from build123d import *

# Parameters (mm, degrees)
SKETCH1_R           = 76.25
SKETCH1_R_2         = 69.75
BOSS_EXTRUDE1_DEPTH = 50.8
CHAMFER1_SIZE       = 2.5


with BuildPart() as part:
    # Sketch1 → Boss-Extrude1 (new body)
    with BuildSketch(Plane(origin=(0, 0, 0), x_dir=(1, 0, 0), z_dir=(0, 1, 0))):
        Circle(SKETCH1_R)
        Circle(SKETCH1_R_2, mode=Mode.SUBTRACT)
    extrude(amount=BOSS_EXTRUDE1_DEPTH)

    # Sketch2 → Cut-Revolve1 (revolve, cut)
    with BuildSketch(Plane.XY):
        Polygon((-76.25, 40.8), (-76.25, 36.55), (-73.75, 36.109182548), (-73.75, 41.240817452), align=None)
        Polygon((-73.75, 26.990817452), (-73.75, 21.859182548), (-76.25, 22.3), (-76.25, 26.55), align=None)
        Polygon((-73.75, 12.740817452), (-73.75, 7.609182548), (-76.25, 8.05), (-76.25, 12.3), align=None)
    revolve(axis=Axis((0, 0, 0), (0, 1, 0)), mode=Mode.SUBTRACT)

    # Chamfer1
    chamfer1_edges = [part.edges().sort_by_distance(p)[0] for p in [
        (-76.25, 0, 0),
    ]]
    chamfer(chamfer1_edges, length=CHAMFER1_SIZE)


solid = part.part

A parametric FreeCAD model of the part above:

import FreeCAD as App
import Part
import Sketcher
Q = App.Units.Quantity


def edges_at(feature, points):
    """Names of the edges that pass closest to the given points."""
    edges = feature.Shape.Edges
    near = lambda p: min(range(len(edges)), key=lambda i: edges[i].distToShape(Part.Vertex(*p))[0])
    return sorted({f"Edge{near(p) + 1}" for p in points})

doc = App.newDocument("Part")
params = doc.addObject("Spreadsheet::Sheet", "Params")
for row, (alias, value) in enumerate([
    ("sketch1_diameter", "152.5 mm"),
    ("sketch1_diameter2", "139.5 mm"),
    ("pad1_length", "50.8 mm"),
    ("sketch2_height", "4.25 mm"),
    ("groove_angle", "360 deg"),
    ("chamfer_size", "2.5 mm"),
], start=1):
    params.set(f"A{row}", alias)
    params.set(f"B{row}", "=" + value)
    params.setAlias(f"B{row}", alias)

body = doc.addObject("PartDesign::Body", "Body")

# Sketch on XZ plane
sketch1 = body.newObject("Sketcher::SketchObject", "Sketch")
sketch1.AttachmentSupport = (doc.getObject("XZ_Plane"), [""])
sketch1.MapMode = "FlatFace"
sketch1.addGeometry([
    Part.Circle(App.Vector(0, 0, 0), App.Vector(0, 0, 1), 76),
    Part.Circle(App.Vector(0, 0, 0), App.Vector(0, 0, 1), 70),
], False)
sketch1.addConstraint([
    Sketcher.Constraint("Coincident", 0, 3, -1, 1),
    Sketcher.Constraint("Coincident", 1, 3, -1, 1),
    Sketcher.Constraint("Diameter", 0, 152.5),
    Sketcher.Constraint("Diameter", 1, 139.5),
])
sketch1.setExpression("Constraints[2]", "Params.sketch1_diameter")
sketch1.setExpression("Constraints[3]", "Params.sketch1_diameter2")
pad1 = body.newObject("PartDesign::Pad", "Pad")
pad1.Profile = sketch1
pad1.setExpression("Length", "Params.pad1_length")
pad1.Reversed = True

# Sketch on XY plane
sketch2 = body.newObject("Sketcher::SketchObject", "Sketch001")
sketch2.AttachmentSupport = (doc.getObject("XY_Plane"), [""])
sketch2.MapMode = "FlatFace"
sketch2.addGeometry([
    Part.LineSegment(App.Vector(-76.2, 40.8, 0), App.Vector(-76.2, 36.5, 0)),  # 0
    Part.LineSegment(App.Vector(-76.2, 36.5, 0), App.Vector(-73.8, 36.1, 0)),  # 1
    Part.LineSegment(App.Vector(-73.8, 36.1, 0), App.Vector(-73.8, 41.2, 0)),  # 2
    Part.LineSegment(App.Vector(-73.8, 41.2, 0), App.Vector(-76.2, 40.8, 0)),  # 3
    Part.LineSegment(App.Vector(-73.8, 21.9, 0), App.Vector(-73.8, 27, 0)),  # 4
    Part.LineSegment(App.Vector(-73.8, 27, 0), App.Vector(-76.2, 26.6, 0)),  # 5
    Part.LineSegment(App.Vector(-76.2, 26.6, 0), App.Vector(-76.2, 22.3, 0)),  # 6
    Part.LineSegment(App.Vector(-76.2, 22.3, 0), App.Vector(-73.8, 21.9, 0)),  # 7
    Part.LineSegment(App.Vector(-73.8, 7.6, 0), App.Vector(-73.8, 12.7, 0)),  # 8
    Part.LineSegment(App.Vector(-73.8, 12.7, 0), App.Vector(-76.2, 12.3, 0)),  # 9
    Part.LineSegment(App.Vector(-76.2, 12.3, 0), App.Vector(-76.2, 8.1, 0)),  # 10
    Part.LineSegment(App.Vector(-76.2, 8.1, 0), App.Vector(-73.8, 7.6, 0)),  # 11
], False)
sketch2.addConstraint([
    Sketcher.Constraint("Coincident", 0, 2, 1, 1),
    Sketcher.Constraint("Coincident", 1, 2, 2, 1),
    Sketcher.Constraint("Coincident", 2, 2, 3, 1),
    Sketcher.Constraint("Coincident", 3, 2, 0, 1),
    Sketcher.Constraint("Coincident", 4, 2, 5, 1),
    Sketcher.Constraint("Coincident", 5, 2, 6, 1),
    Sketcher.Constraint("Coincident", 6, 2, 7, 1),
    Sketcher.Constraint("Coincident", 7, 2, 4, 1),
    Sketcher.Constraint("Coincident", 8, 2, 9, 1),
    Sketcher.Constraint("Coincident", 9, 2, 10, 1),
    Sketcher.Constraint("Coincident", 10, 2, 11, 1),
    Sketcher.Constraint("Coincident", 11, 2, 8, 1),
    Sketcher.Constraint("Vertical", 0),
    Sketcher.Constraint("Vertical", 2),
    Sketcher.Constraint("Vertical", 4),
    Sketcher.Constraint("Vertical", 6),
    Sketcher.Constraint("Vertical", 8),
    Sketcher.Constraint("Vertical", 10),
    Sketcher.Constraint("Parallel", 3, 5),
    Sketcher.Constraint("Parallel", 1, 7),
    Sketcher.Constraint("Parallel", 5, 9),
    Sketcher.Constraint("Parallel", 7, 11),
    Sketcher.Constraint("Vertical", 2, 2, 4, 2),
    Sketcher.Constraint("Vertical", 3, 2, 5, 2),
    Sketcher.Constraint("Vertical", 7, 2, 8, 2),
    Sketcher.Constraint("Vertical", 6, 2, 9, 2),
    Sketcher.Constraint("Equal", 2, 4),
    Sketcher.Constraint("Equal", 4, 8),
    Sketcher.Constraint("Equal", 1, 3),
    Sketcher.Constraint("Angle", 1, Q("-10 deg")),
    Sketcher.Constraint("DistanceY", 5, 2, 0, 2, 10.0),
    Sketcher.Constraint("DistanceY", 9, 2, 6, 2, 10.0),
    Sketcher.Constraint("DistanceY", 0, 2, 0, 1, 4.25),
    Sketcher.Constraint("DistanceY", -1, 1, 3, 2, 40.8),
    Sketcher.Constraint("DistanceX", 0, 2, 1, 2, 2.5),
    Sketcher.Constraint("DistanceX", 0, 2, -1, 1, 76.25),
])
sketch2.setExpression("Constraints[32]", "Params.sketch2_height")
groove = body.newObject("PartDesign::Groove", "Groove")
groove.Profile = sketch2
groove.ReferenceAxis = (sketch2, ["V_Axis"])
groove.setExpression("Angle", "Params.groove_angle")
doc.recompute()

chamfer = body.newObject("PartDesign::Chamfer", "Chamfer")
chamfer.Base = (groove, edges_at(groove, [(-76.25, 0, 0)]))
chamfer.setExpression("Size", "Params.chamfer_size")

doc.recompute()
